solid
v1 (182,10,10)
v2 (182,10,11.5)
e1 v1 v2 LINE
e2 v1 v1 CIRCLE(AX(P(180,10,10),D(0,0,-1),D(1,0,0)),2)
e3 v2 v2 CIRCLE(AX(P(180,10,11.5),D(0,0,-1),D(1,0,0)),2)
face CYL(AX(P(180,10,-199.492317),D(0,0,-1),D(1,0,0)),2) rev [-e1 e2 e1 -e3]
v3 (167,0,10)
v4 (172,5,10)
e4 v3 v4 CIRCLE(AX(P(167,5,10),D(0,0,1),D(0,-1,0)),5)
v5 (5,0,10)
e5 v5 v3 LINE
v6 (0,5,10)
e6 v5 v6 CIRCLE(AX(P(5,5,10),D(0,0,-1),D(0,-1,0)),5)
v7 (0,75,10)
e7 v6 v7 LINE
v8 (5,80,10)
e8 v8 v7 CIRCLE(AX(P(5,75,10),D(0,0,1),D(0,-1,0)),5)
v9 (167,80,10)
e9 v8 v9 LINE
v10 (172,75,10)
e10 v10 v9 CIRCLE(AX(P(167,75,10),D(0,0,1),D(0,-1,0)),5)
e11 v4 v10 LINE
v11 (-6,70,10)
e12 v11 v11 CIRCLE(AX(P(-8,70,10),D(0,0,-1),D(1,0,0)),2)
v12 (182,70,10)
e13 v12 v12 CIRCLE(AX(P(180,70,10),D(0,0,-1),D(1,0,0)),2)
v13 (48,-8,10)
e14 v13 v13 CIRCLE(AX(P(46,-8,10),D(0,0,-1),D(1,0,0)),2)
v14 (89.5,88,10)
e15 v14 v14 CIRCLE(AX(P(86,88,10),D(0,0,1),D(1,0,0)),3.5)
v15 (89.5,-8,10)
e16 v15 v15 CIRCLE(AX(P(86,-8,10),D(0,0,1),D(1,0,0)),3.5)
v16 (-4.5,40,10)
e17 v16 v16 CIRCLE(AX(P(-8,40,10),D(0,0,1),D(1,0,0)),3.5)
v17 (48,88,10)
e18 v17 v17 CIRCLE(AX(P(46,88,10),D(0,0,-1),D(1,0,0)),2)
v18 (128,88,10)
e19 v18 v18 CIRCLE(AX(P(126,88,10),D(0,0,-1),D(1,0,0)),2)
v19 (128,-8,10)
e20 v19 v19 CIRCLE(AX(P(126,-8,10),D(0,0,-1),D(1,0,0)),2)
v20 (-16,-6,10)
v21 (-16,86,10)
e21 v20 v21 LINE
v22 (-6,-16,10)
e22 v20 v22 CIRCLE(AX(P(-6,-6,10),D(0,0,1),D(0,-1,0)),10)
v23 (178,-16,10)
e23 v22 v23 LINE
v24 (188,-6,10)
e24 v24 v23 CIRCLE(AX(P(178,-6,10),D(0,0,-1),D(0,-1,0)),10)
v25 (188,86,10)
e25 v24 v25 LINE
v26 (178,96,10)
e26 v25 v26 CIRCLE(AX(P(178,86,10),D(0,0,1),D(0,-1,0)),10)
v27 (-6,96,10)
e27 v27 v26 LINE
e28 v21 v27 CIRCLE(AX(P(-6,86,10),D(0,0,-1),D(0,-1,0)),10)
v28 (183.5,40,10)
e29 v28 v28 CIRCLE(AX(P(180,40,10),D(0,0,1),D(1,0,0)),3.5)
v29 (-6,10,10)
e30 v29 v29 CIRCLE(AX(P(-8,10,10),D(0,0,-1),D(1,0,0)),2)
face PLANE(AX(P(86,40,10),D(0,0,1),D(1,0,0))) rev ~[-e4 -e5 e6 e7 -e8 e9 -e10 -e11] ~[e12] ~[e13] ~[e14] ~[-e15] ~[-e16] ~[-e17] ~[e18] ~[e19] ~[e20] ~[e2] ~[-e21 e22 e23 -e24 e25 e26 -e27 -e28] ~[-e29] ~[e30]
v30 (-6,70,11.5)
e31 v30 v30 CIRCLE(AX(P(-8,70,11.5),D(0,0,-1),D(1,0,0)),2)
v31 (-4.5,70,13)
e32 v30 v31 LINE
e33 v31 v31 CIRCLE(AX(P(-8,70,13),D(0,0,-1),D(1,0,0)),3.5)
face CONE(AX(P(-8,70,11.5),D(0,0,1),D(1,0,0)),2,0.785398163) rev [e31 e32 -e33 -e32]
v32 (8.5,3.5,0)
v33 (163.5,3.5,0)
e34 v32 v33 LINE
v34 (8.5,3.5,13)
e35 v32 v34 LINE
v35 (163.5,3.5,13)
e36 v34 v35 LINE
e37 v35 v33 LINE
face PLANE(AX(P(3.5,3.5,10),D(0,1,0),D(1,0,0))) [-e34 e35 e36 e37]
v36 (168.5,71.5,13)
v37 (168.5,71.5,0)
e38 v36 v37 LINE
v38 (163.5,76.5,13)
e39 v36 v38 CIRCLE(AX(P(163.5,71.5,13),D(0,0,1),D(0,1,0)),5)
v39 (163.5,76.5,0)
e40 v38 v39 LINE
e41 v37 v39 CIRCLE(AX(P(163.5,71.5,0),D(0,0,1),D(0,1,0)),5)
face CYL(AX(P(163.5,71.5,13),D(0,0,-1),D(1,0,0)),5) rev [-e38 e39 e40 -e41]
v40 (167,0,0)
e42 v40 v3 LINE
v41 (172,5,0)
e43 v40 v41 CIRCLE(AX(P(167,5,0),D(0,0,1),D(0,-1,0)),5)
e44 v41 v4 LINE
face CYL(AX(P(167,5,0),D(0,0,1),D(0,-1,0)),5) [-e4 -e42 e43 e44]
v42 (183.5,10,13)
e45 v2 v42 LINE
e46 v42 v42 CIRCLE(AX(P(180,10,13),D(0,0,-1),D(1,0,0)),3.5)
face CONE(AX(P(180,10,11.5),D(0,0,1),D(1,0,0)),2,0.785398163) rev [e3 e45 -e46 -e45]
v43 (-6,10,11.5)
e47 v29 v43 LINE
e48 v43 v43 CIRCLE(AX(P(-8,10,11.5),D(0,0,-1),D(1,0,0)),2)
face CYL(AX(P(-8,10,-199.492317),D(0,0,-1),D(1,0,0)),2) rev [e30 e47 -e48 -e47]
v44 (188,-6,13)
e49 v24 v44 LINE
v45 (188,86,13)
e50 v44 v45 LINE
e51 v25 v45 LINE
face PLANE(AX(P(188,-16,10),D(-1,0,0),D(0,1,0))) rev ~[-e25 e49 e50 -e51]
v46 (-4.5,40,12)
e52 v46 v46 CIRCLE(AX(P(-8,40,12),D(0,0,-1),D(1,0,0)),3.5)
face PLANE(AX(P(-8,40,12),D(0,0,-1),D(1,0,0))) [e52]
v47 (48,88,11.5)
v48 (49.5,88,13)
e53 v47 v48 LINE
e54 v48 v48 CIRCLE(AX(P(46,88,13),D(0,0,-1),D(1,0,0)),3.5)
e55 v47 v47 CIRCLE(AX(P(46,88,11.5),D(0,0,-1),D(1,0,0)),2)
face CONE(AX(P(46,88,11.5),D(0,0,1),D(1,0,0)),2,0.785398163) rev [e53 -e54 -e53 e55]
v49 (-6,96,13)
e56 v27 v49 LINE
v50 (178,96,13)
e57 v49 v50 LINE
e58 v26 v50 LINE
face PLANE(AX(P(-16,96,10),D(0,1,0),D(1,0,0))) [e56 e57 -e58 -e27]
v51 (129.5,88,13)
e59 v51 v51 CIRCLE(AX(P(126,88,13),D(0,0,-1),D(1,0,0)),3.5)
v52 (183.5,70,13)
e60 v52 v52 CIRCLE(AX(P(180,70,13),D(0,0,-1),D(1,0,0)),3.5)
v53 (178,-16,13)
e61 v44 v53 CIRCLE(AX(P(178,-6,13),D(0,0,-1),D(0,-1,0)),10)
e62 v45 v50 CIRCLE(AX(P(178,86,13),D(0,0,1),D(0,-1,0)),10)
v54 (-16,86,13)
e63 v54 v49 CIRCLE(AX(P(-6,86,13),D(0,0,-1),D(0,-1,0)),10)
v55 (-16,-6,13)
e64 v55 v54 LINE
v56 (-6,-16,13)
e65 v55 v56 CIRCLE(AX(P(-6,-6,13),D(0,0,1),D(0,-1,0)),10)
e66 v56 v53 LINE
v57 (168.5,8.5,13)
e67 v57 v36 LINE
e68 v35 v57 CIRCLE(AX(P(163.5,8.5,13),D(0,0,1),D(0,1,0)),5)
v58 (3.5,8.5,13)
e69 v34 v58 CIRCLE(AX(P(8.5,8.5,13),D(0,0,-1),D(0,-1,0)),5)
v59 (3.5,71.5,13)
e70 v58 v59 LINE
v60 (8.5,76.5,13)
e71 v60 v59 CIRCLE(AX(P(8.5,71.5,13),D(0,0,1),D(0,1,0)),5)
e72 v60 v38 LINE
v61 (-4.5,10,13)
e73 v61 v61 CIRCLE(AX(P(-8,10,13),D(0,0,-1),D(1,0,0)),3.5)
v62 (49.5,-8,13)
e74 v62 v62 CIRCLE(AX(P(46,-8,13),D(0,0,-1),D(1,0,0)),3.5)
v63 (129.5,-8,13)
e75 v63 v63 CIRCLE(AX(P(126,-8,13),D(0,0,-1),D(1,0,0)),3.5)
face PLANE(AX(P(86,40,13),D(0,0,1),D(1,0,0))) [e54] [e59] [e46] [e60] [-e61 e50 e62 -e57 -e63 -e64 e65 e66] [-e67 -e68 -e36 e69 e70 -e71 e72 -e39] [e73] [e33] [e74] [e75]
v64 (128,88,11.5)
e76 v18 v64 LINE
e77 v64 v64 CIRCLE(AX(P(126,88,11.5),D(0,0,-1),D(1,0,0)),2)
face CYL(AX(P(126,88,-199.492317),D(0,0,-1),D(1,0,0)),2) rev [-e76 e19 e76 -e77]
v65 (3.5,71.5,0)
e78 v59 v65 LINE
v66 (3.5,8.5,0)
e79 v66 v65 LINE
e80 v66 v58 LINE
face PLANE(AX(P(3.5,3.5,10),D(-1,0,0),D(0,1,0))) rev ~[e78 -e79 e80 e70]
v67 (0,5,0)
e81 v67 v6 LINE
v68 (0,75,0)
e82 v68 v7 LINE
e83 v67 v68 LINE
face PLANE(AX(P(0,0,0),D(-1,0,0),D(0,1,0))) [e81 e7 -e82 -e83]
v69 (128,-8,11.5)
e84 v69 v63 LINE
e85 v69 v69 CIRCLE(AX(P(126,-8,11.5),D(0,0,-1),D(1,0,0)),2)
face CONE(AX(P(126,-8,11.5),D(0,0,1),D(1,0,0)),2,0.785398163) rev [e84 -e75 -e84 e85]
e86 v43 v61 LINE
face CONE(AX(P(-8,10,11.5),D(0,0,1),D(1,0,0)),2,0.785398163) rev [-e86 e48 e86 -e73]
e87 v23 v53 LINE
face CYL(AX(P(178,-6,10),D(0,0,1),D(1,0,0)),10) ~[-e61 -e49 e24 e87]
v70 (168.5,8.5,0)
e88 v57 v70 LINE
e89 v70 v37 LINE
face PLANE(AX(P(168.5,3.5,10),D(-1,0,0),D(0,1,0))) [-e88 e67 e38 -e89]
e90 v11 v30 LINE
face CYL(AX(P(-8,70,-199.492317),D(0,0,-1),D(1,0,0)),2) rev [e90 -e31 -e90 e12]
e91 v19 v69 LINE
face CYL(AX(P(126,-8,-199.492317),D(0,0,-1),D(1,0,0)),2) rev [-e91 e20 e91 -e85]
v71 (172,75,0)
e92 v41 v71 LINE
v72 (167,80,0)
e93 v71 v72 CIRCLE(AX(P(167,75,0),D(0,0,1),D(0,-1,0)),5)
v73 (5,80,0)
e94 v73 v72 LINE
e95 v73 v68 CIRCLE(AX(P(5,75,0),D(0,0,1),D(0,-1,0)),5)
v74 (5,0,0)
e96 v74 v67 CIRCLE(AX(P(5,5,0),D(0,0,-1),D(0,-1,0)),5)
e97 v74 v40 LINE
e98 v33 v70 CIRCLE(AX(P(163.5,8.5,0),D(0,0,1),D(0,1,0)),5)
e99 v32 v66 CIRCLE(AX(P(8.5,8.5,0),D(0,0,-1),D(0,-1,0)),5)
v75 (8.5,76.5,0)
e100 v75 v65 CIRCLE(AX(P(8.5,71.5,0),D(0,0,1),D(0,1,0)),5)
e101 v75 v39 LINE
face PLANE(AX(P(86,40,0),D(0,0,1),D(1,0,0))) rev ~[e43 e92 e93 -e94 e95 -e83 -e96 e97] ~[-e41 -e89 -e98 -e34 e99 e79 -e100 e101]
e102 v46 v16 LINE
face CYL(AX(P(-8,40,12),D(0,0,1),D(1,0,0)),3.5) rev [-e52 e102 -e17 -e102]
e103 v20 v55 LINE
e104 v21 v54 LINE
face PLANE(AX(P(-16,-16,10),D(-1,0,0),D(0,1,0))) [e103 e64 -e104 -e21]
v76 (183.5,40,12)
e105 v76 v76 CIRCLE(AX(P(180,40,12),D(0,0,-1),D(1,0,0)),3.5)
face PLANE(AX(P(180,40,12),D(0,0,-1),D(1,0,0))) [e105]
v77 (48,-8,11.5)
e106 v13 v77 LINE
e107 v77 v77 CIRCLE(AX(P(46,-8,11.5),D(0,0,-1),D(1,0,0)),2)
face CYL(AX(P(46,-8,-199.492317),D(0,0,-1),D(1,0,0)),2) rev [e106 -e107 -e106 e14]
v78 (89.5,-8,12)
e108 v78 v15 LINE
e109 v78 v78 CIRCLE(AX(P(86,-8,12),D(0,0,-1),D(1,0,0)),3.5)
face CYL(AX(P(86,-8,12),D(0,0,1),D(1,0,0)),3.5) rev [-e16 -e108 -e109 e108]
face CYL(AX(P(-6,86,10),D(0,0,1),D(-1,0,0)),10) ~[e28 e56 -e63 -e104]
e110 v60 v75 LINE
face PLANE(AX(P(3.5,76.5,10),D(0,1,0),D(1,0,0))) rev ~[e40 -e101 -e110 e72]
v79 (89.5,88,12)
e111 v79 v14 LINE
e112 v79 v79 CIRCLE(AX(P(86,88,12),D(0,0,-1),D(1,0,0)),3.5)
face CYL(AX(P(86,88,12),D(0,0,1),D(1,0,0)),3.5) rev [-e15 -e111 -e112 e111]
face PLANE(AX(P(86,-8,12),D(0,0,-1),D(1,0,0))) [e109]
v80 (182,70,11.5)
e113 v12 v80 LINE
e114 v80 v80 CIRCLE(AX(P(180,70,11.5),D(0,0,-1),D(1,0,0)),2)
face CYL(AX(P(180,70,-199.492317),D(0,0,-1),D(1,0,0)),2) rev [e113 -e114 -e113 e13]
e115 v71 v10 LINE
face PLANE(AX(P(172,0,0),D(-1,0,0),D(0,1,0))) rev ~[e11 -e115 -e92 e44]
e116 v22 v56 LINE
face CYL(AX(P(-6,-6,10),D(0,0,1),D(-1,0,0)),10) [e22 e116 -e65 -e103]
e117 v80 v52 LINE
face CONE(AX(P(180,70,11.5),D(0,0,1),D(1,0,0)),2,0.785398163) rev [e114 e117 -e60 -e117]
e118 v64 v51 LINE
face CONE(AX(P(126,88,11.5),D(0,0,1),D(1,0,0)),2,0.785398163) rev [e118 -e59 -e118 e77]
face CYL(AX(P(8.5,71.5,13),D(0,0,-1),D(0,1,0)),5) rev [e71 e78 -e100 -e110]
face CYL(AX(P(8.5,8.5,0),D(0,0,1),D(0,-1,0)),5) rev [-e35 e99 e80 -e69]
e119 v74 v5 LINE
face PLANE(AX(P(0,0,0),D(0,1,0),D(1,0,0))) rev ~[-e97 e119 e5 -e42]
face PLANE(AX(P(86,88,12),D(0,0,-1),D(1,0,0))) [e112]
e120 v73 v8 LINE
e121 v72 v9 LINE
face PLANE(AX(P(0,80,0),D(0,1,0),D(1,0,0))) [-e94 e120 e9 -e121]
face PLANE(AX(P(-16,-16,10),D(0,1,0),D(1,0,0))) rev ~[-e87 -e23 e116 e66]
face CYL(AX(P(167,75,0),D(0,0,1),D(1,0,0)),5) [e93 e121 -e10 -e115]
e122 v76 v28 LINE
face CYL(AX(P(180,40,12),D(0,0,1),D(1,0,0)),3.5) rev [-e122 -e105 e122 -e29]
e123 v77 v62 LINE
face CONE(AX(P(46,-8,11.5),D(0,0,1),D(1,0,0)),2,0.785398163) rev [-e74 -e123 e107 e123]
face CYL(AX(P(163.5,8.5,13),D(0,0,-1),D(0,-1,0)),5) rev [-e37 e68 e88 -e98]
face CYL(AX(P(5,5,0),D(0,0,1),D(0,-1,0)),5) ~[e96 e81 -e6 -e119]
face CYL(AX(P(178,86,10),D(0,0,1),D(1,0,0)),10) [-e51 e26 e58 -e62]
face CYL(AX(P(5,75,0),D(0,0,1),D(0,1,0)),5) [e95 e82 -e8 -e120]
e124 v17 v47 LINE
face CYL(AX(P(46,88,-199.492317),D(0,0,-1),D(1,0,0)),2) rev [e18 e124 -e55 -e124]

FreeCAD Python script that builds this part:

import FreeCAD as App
import Part
import Sketcher
from FreeCAD import Vector


def edges_at(feature, points):
    """Names of the edges that pass closest to the given points."""
    edges = feature.Shape.Edges
    near = lambda p: min(range(len(edges)), key=lambda i: edges[i].distToShape(Part.Vertex(*p))[0])
    return sorted({f"Edge{near(p) + 1}" for p in points})


def add_polygon(sketch, points):
    """Adds a closed chain of lines whose ends are joined by coincident constraints."""
    first, n = sketch.GeometryCount, len(points)
    for a, b in zip(points, points[1:] + points[:1]):
        sketch.addGeometry(Part.LineSegment(App.Vector(*a, 0), App.Vector(*b, 0)), False)
    for i in range(n):
        sketch.addConstraint(Sketcher.Constraint("Coincident", first + i, 2, first + (i + 1) % n, 1))

doc = App.newDocument("Part")
params = doc.addObject("Spreadsheet::Sheet", "Params")
for row, (alias, value) in enumerate([
    ("sketch1_width", "172 mm"),
    ("sketch1_width2", "165 mm"),
    ("sketch1_height", "80 mm"),
    ("sketch1_height2", "73 mm"),
    ("pad1_length", "10 mm"),
    ("sketch2_width", "204 mm"),
    ("sketch2_width2", "165 mm"),
    ("sketch2_height", "112 mm"),
    ("sketch2_height2", "73 mm"),
    ("pad2_length", "3 mm"),
    ("fillet_radius", "10 mm"),
    ("fillet2_radius", "5 mm"),
    ("sketch3_diameter", "7 mm"),
    ("pocket1_length", "212.329127 mm"),
    ("pocket1_length2", "2 mm"),
    ("sketch4_diameter", "4 mm"),
    ("chamfer_size", "1.5 mm"),
], start=1):
    params.set(f"A{row}", alias)
    params.set(f"B{row}", "=" + value)
    params.setAlias(f"B{row}", alias)

body = doc.addObject("PartDesign::Body", "Body")

sketch1 = body.newObject("Sketcher::SketchObject", "Sketch")
sketch1.AttachmentSupport = (doc.getObject("XY_Plane"), [""])
sketch1.MapMode = "FlatFace"
add_polygon(sketch1, [(0, 80), (0, 0), (172, 0), (172, 80)])
add_polygon(sketch1, [(168, 4), (4, 4), (4, 76), (168, 76)])
sketch1.addConstraint(Sketcher.Constraint("Vertical", 0))
sketch1.addConstraint(Sketcher.Constraint("Horizontal", 1))
sketch1.addConstraint(Sketcher.Constraint("Vertical", 2))
sketch1.addConstraint(Sketcher.Constraint("Horizontal", 3))
sketch1.addConstraint(Sketcher.Constraint("Horizontal", 4))
sketch1.addConstraint(Sketcher.Constraint("Vertical", 5))
sketch1.addConstraint(Sketcher.Constraint("Horizontal", 6))
sketch1.addConstraint(Sketcher.Constraint("Vertical", 7))
sketch1.addConstraint(Sketcher.Constraint("Coincident", 0, 2, -1, 1))
sketch1.addConstraint(Sketcher.Constraint("DistanceX", 1, 1, 1, 2, 172.0))
sketch1.addConstraint(Sketcher.Constraint("DistanceX", 4, 2, 4, 1, 165.0))
sketch1.addConstraint(Sketcher.Constraint("DistanceY", 0, 2, 0, 1, 80.0))
sketch1.addConstraint(Sketcher.Constraint("DistanceY", 5, 1, 5, 2, 73.0))
sketch1.addConstraint(Sketcher.Constraint("DistanceX", -1, 1, 4, 2, 3.5))
sketch1.addConstraint(Sketcher.Constraint("DistanceY", -1, 1, 4, 2, 3.5))
sketch1.setExpression("Constraints[17]", "Params.sketch1_width")
sketch1.setExpression("Constraints[18]", "Params.sketch1_width2")
sketch1.setExpression("Constraints[19]", "Params.sketch1_height")
sketch1.setExpression("Constraints[20]", "Params.sketch1_height2")
pad1 = body.newObject("PartDesign::Pad", "Pad")
pad1.Profile = sketch1
pad1.setExpression("Length", "Params.pad1_length")

sketch2 = body.newObject("Sketcher::SketchObject", "Sketch001")
sketch2.AttachmentSupport = (doc.getObject("XY_Plane"), [""])
sketch2.MapMode = "FlatFace"
sketch2.AttachmentOffset = App.Placement(Vector(0, 0, 10), App.Rotation())
add_polygon(sketch2, [(-16, 96), (-16, -16), (188, -16), (188, 96)])
add_polygon(sketch2, [(168, 4), (4, 4), (4, 76), (168, 76)])
sketch2.addConstraint(Sketcher.Constraint("Vertical", 0))
sketch2.addConstraint(Sketcher.Constraint("Horizontal", 1))
sketch2.addConstraint(Sketcher.Constraint("Vertical", 2))
sketch2.addConstraint(Sketcher.Constraint("Horizontal", 3))
sketch2.addConstraint(Sketcher.Constraint("Horizontal", 4))
sketch2.addConstraint(Sketcher.Constraint("Vertical", 5))
sketch2.addConstraint(Sketcher.Constraint("Horizontal", 6))
sketch2.addConstraint(Sketcher.Constraint("Vertical", 7))
sketch2.addConstraint(Sketcher.Constraint("DistanceX", 1, 1, 1, 2, 204.0))
sketch2.addConstraint(Sketcher.Constraint("DistanceX", 4, 2, 4, 1, 165.0))
sketch2.addConstraint(Sketcher.Constraint("DistanceY", 0, 2, 0, 1, 112.0))
sketch2.addConstraint(Sketcher.Constraint("DistanceY", 5, 1, 5, 2, 73.0))
sketch2.addConstraint(Sketcher.Constraint("DistanceX", 0, 2, -1, 1, 16.0))
sketch2.addConstraint(Sketcher.Constraint("DistanceY", 0, 2, -1, 1, 16.0))
sketch2.addConstraint(Sketcher.Constraint("DistanceX", -1, 1, 4, 2, 3.5))
sketch2.addConstraint(Sketcher.Constraint("DistanceY", -1, 1, 4, 2, 3.5))
sketch2.setExpression("Constraints[16]", "Params.sketch2_width")
sketch2.setExpression("Constraints[17]", "Params.sketch2_width2")
sketch2.setExpression("Constraints[18]", "Params.sketch2_height")
sketch2.setExpression("Constraints[19]", "Params.sketch2_height2")
pad2 = body.newObject("PartDesign::Pad", "Pad001")
pad2.Profile = sketch2
pad2.setExpression("Length", "Params.pad2_length")
doc.recompute()

fillet = body.newObject("PartDesign::Fillet", "Fillet")
fillet.Base = (pad2, edges_at(pad2, [
    (-16, 96, 11.5),
    (-16, -16, 11.5),
    (188, -16, 11.5),
    (188, 96, 11.5),
]))
fillet.setExpression("Radius", "Params.fillet_radius")
doc.recompute()

fillet2 = body.newObject("PartDesign::Fillet", "Fillet001")
fillet2.Base = (fillet, edges_at(fillet, [
    (3.5, 76.5, 6.5),
    (3.5, 3.5, 6.5),
    (168.5, 3.5, 6.5),
    (168.5, 76.5, 6.5),
    (0, 80, 5),
    (172, 80, 5),
    (172, 0, 5),
    (0, 0, 5),
]))
fillet2.setExpression("Radius", "Params.fillet2_radius")

sketch3 = body.newObject("Sketcher::SketchObject", "Sketch002")
sketch3.AttachmentSupport = (doc.getObject("XY_Plane"), [""])
sketch3.MapMode = "FlatFace"
sketch3.AttachmentOffset = App.Placement(Vector(0, 0, 10), App.Rotation())
sketch3.addGeometry(Part.Circle(Vector(180, 40, 0), Vector(0, 0, 1), 3.5), False)
sketch3.addGeometry(Part.Circle(Vector(-8, 40, 0), Vector(0, 0, 1), 3.5), False)
sketch3.addGeometry(Part.Circle(Vector(86, -8, 0), Vector(0, 0, 1), 3.5), False)
sketch3.addGeometry(Part.Circle(Vector(86, 88, 0), Vector(0, 0, 1), 3.5), False)
sketch3.addConstraint(Sketcher.Constraint("Equal", 0, 1))
sketch3.addConstraint(Sketcher.Constraint("Equal", 1, 2))
sketch3.addConstraint(Sketcher.Constraint("Equal", 2, 3))
sketch3.addConstraint(Sketcher.Constraint("Horizontal", 0, 3, 1, 3))
sketch3.addConstraint(Sketcher.Constraint("Vertical", 2, 3, 3, 3))
sketch3.addConstraint(Sketcher.Constraint("Diameter", 0, 7.0))
sketch3.addConstraint(Sketcher.Constraint("DistanceX", -1, 1, 0, 3, 180.0))
sketch3.addConstraint(Sketcher.Constraint("DistanceY", -1, 1, 0, 3, 40.0))
sketch3.addConstraint(Sketcher.Constraint("DistanceX", 1, 3, -1, 1, 8.0))
sketch3.addConstraint(Sketcher.Constraint("DistanceX", -1, 1, 2, 3, 86.0))
sketch3.addConstraint(Sketcher.Constraint("DistanceY", 2, 3, -1, 1, 8.0))
sketch3.addConstraint(Sketcher.Constraint("DistanceY", -1, 1, 3, 3, 88.0))
sketch3.setExpression("Constraints[5]", "Params.sketch3_diameter")
pocket1 = body.newObject("PartDesign::Pocket", "Pocket")
pocket1.Profile = sketch3
pocket1.Type = "TwoLengths"
pocket1.setExpression("Length", "Params.pocket1_length")
pocket1.setExpression("Length2", "Params.pocket1_length2")

sketch4 = body.newObject("Sketcher::SketchObject", "Sketch003")
sketch4.AttachmentSupport = (doc.getObject("XY_Plane"), [""])
sketch4.MapMode = "FlatFace"
sketch4.AttachmentOffset = App.Placement(Vector(0, 0, 13), App.Rotation())
sketch4.addGeometry(Part.Circle(Vector(-8, 70, 0), Vector(0, 0, 1), 2), False)
sketch4.addGeometry(Part.Circle(Vector(-8, 10, 0), Vector(0, 0, 1), 2), False)
sketch4.addGeometry(Part.Circle(Vector(180, 10, 0), Vector(0, 0, 1), 2), False)
sketch4.addGeometry(Part.Circle(Vector(180, 70, 0), Vector(0, 0, 1), 2), False)
sketch4.addGeometry(Part.Circle(Vector(46, 88, 0), Vector(0, 0, 1), 2), False)
sketch4.addGeometry(Part.Circle(Vector(126, 88, 0), Vector(0, 0, 1), 2), False)
sketch4.addGeometry(Part.Circle(Vector(126, -8, 0), Vector(0, 0, 1), 2), False)
sketch4.addGeometry(Part.Circle(Vector(46, -8, 0), Vector(0, 0, 1), 2), False)
sketch4.addConstraint(Sketcher.Constraint("Equal", 0, 1))
sketch4.addConstraint(Sketcher.Constraint("Equal", 1, 2))
sketch4.addConstraint(Sketcher.Constraint("Equal", 2, 3))
sketch4.addConstraint(Sketcher.Constraint("Equal", 3, 4))
sketch4.addConstraint(Sketcher.Constraint("Equal", 4, 5))
sketch4.addConstraint(Sketcher.Constraint("Equal", 5, 6))
sketch4.addConstraint(Sketcher.Constraint("Equal", 6, 7))
sketch4.addConstraint(Sketcher.Constraint("Horizontal", 1, 3, 2, 3))
sketch4.addConstraint(Sketcher.Constraint("Horizontal", 0, 3, 3, 3))
sketch4.addConstraint(Sketcher.Constraint("Horizontal", 4, 3, 5, 3))
sketch4.addConstraint(Sketcher.Constraint("Horizontal", 6, 3, 7, 3))
sketch4.addConstraint(Sketcher.Constraint("Vertical", 0, 3, 1, 3))
sketch4.addConstraint(Sketcher.Constraint("Vertical", 2, 3, 3, 3))
sketch4.addConstraint(Sketcher.Constraint("Vertical", 5, 3, 6, 3))
sketch4.addConstraint(Sketcher.Constraint("Vertical", 4, 3, 7, 3))
sketch4.addConstraint(Sketcher.Constraint("Diameter", 0, 4.0))
sketch4.addConstraint(Sketcher.Constraint("DistanceX", 0, 3, -1, 1, 8.0))
sketch4.addConstraint(Sketcher.Constraint("DistanceY", -1, 1, 0, 3, 70.0))
sketch4.addConstraint(Sketcher.Constraint("DistanceY", -1, 1, 1, 3, 10.0))
sketch4.addConstraint(Sketcher.Constraint("DistanceX", -1, 1, 2, 3, 180.0))
sketch4.addConstraint(Sketcher.Constraint("DistanceX", -1, 1, 4, 3, 46.0))
sketch4.addConstraint(Sketcher.Constraint("DistanceY", -1, 1, 4, 3, 88.0))
sketch4.addConstraint(Sketcher.Constraint("DistanceX", -1, 1, 5, 3, 126.0))
sketch4.addConstraint(Sketcher.Constraint("DistanceY", 6, 3, -1, 1, 8.0))
sketch4.setExpression("Constraints[15]", "Params.sketch4_diameter")
pocket2 = body.newObject("PartDesign::Pocket", "Pocket001")
pocket2.Profile = sketch4
pocket2.Type = "ThroughAll"
pocket2.Midplane = True
doc.recompute()

chamfer = body.newObject("PartDesign::Chamfer", "Chamfer")
chamfer.Base = (pocket2, edges_at(pocket2, [
    (-10, 70, 13),
    (44, -8, 13),
    (124, -8, 13),
    (124, 88, 13),
    (44, 88, 13),
    (178, 70, 13),
    (178, 10, 13),
    (-10, 10, 13),
]))
chamfer.setExpression("Size", "Params.chamfer_size")

doc.recompute()
